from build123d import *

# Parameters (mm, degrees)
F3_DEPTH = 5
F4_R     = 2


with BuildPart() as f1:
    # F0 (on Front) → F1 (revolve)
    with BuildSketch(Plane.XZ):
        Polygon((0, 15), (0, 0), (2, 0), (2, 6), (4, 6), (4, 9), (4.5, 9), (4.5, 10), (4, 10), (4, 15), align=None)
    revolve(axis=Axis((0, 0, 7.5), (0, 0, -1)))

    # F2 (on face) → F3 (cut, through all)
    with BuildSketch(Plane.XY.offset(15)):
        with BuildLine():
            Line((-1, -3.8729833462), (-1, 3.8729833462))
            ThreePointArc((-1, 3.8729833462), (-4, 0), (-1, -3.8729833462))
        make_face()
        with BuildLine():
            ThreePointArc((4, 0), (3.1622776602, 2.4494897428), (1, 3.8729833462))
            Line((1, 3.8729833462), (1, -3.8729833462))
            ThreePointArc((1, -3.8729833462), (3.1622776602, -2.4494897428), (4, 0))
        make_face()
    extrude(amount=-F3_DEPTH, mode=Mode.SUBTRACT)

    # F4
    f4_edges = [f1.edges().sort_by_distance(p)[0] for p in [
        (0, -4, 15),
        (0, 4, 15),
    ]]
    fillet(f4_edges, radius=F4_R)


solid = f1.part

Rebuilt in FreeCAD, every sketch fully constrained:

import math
import FreeCAD as App
import Part
import Sketcher
Q = App.Units.Quantity


def edges_at(feature, points):
    """Names of the edges that pass closest to the given points."""
    edges = feature.Shape.Edges
    near = lambda p: min(range(len(edges)), key=lambda i: edges[i].distToShape(Part.Vertex(*p))[0])
    return sorted({f"Edge{near(p) + 1}" for p in points})


def add_polygon(sketch, points):
    """Adds a closed chain of lines whose ends are joined by coincident constraints."""
    first, n = sketch.GeometryCount, len(points)
    for a, b in zip(points, points[1:] + points[:1]):
        sketch.addGeometry(Part.LineSegment(App.Vector(*a, 0), App.Vector(*b, 0)), False)
    for i in range(n):
        sketch.addConstraint(Sketcher.Constraint("Coincident", first + i, 2, first + (i + 1) % n, 1))

doc = App.newDocument("Part")
body = doc.addObject("PartDesign::Body", "Body")

sketch1 = body.newObject("Sketcher::SketchObject", "Sketch")
sketch1.AttachmentSupport = (doc.getObject("XZ_Plane"), [""])
sketch1.MapMode = "FlatFace"
add_polygon(sketch1, [(0, 15), (0, 0), (2, 0), (2, 6), (4, 6), (4, 9), (4.5, 9), (4.5, 10), (4, 10), (4, 15)])
sketch1.addConstraint([
    Sketcher.Constraint("Vertical", 0),
    Sketcher.Constraint("Horizontal", 1),
    Sketcher.Constraint("Vertical", 2),
    Sketcher.Constraint("Horizontal", 3),
    Sketcher.Constraint("Vertical", 4),
    Sketcher.Constraint("Horizontal", 5),
    Sketcher.Constraint("Vertical", 6),
    Sketcher.Constraint("Horizontal", 7),
    Sketcher.Constraint("Vertical", 8),
    Sketcher.Constraint("Horizontal", 9),
    Sketcher.Constraint("Coincident", 0, 2, -1, 1),
    Sketcher.Constraint("Vertical", 4, 2, 7, 2),
    Sketcher.Constraint("Equal", 1, 3),
    Sketcher.Constraint("DistanceX", 1, 1, 1, 2, Q("2 mm")),
    Sketcher.Constraint("DistanceY", 0, 2, 0, 1, Q("15 mm")),
    Sketcher.Constraint("DistanceY", 2, 1, 2, 2, Q("6 mm")),
    Sketcher.Constraint("DistanceY", 4, 1, 4, 2, Q("3 mm")),
    Sketcher.Constraint("DistanceY", 6, 1, 6, 2, Q("1 mm")),
    Sketcher.Constraint("DistanceX", 5, 1, 5, 2, Q("0.5 mm")),
])
revolution = body.newObject("PartDesign::Revolution", "Revolution")
revolution.Profile = sketch1
revolution.ReferenceAxis = (sketch1, ["V_Axis"])
revolution.Angle = 360

sketch2 = body.newObject("Sketcher::SketchObject", "Sketch001")
sketch2.AttachmentSupport = (doc.getObject("XY_Plane"), [""])
sketch2.MapMode = "FlatFace"
sketch2.AttachmentOffset = App.Placement(App.Vector(0, 0, 15), App.Rotation())
sketch2.addGeometry([
    Part.LineSegment(App.Vector(-1, -3.9, 0), App.Vector(-1, 3.9, 0)),
    Part.ArcOfCircle(Part.Circle(App.Vector(0, 0, 0), App.Vector(0, 0, 1), 4), math.radians(104), math.radians(256)),
    Part.ArcOfCircle(Part.Circle(App.Vector(0, 0, 0), App.Vector(0, 0, 1), 4), math.radians(0), math.radians(76)),
    Part.LineSegment(App.Vector(1, 3.9, 0), App.Vector(1, -3.9, 0)),
    Part.ArcOfCircle(Part.Circle(App.Vector(0, 0, 0), App.Vector(0, 0, 1), 4), math.radians(-76), math.radians(0)),
], False)
sketch2.addConstraint([
    Sketcher.Constraint("Coincident", 0, 1, 1, 2),
    Sketcher.Constraint("Coincident", 1, 1, 0, 2),
    Sketcher.Constraint("Coincident", 2, 2, 3, 1),
    Sketcher.Constraint("Coincident", 3, 2, 4, 1),
    Sketcher.Constraint("Tangent", 4, 2, 2, 1),
    Sketcher.Constraint("Vertical", 0),
    Sketcher.Constraint("Vertical", 3),
    Sketcher.Constraint("Coincident", 1, 3, -1, 1),
    Sketcher.Constraint("Coincident", 2, 3, -1, 1),
    Sketcher.Constraint("Equal", 1, 2),
    Sketcher.Constraint("Equal", 2, 4),
    Sketcher.Constraint("PointOnObject", 4, 2, -1),
    Sketcher.Constraint("Horizontal", 1, 1, 2, 2),
    Sketcher.Constraint("Radius", 1, Q("4 mm")),
    Sketcher.Constraint("DistanceX", 0, 1, -1, 1, Q("1 mm")),
])
pocket1 = body.newObject("PartDesign::Pocket", "Pocket")
pocket1.Profile = sketch2
pocket1.Length = 5
doc.recompute()

fillet = body.newObject("PartDesign::Fillet", "Fillet")
fillet.Base = (pocket1, edges_at(pocket1, [(0, -4, 15), (0, 4, 15)]))
fillet.Radius = 2

doc.recompute()
